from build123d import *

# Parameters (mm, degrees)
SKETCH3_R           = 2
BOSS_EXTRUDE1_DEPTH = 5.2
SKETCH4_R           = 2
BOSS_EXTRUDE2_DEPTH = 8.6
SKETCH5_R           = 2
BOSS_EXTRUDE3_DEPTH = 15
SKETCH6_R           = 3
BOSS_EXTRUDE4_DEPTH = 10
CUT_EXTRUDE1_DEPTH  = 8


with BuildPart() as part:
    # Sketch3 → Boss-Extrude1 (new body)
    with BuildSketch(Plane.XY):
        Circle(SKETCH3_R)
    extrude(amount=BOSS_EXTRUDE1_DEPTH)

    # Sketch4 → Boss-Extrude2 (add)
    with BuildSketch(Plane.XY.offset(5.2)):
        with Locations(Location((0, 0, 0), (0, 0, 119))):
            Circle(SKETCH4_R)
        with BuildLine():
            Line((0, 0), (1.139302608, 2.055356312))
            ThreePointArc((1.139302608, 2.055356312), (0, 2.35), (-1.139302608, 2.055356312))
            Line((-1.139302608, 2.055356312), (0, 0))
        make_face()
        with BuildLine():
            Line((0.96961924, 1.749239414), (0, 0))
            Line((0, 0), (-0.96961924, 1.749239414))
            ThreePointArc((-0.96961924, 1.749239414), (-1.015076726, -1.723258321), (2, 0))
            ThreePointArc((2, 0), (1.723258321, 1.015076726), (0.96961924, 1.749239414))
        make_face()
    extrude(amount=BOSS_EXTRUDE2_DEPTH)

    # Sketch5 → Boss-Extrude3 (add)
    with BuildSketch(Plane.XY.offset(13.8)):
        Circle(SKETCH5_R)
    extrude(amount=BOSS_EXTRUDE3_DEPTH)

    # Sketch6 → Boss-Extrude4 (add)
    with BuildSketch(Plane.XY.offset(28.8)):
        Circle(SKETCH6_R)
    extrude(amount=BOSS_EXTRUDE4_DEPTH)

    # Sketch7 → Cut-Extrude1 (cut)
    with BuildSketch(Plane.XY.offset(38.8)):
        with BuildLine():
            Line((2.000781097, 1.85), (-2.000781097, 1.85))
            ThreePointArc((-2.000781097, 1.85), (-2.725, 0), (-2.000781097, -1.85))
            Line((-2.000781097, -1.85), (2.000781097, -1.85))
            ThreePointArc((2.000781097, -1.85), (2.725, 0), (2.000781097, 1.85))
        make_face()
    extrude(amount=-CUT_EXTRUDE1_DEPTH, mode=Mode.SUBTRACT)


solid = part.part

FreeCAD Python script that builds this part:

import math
import FreeCAD as App
import Part
import Sketcher
Q = App.Units.Quantity

doc = App.newDocument("Part")
body = doc.addObject("PartDesign::Body", "Body")

# Sketch on XY plane
sketch1 = doc.addObject("Sketcher::SketchObject", "Sketch")
body.addObject(sketch1)
sketch1.AttachmentSupport = (doc.XY_Plane, [""])
sketch1.MapMode = "FlatFace"
sketch1.addGeometry(Part.Circle(App.Vector(0, 0, 0), App.Vector(0, 0, 1), 2), False)
sketch1.addConstraint([
    Sketcher.Constraint("Coincident", 0, 3, -1, 1),
    Sketcher.Constraint("Diameter", 0, Q("4 mm")),
])
pad1 = doc.addObject("PartDesign::Pad", "Pad")
body.addObject(pad1)
pad1.Profile = sketch1
pad1.Length = 5.2

# Sketch on XY plane
sketch2 = doc.addObject("Sketcher::SketchObject", "Sketch001")
body.addObject(sketch2)
sketch2.AttachmentSupport = (doc.XY_Plane, [""])
sketch2.MapMode = "FlatFace"
sketch2.AttachmentOffset = App.Placement(App.Vector(0, 0, 5.2), App.Rotation())
sketch2.addGeometry([
    Part.LineSegment(App.Vector(-1.14, 2.06, 0), App.Vector(-0.97, 1.75, 0)),
    Part.ArcOfCircle(Part.Circle(App.Vector(0, 0, 0), App.Vector(0, 0, 1), 2), math.radians(119), math.radians(421)),
    Part.LineSegment(App.Vector(0.97, 1.75, 0), App.Vector(1.14, 2.06, 0)),
    Part.ArcOfCircle(Part.Circle(App.Vector(0, 0, 0), App.Vector(0, 0, 1), 2.35), math.radians(61), math.radians(119)),
], False)
sketch2.addConstraint([
    Sketcher.Constraint("Coincident", 0, 2, 1, 1),
    Sketcher.Constraint("Coincident", 1, 2, 2, 1),
    Sketcher.Constraint("Coincident", 2, 2, 3, 1),
    Sketcher.Constraint("Coincident", 3, 2, 0, 1),
    Sketcher.Constraint("Coincident", 1, 3, -1, 1),
    Sketcher.Constraint("Coincident", 3, 3, -1, 1),
    Sketcher.Constraint("Horizontal", 0, 2, 1, 2),
    Sketcher.Constraint("Horizontal", 2, 2, 3, 2),
    Sketcher.Constraint("Radius", 1, Q("2 mm")),
    Sketcher.Constraint("Angle", 0, Q("-61 deg")),
    Sketcher.Constraint("Radius", 3, Q("2.35 mm")),
    Sketcher.Constraint("DistanceX", 0, 2, -1, 1, Q("0.969619 mm")),
])
pad2 = doc.addObject("PartDesign::Pad", "Pad001")
body.addObject(pad2)
pad2.Profile = sketch2
pad2.Length = 8.6

# Sketch on XY plane
sketch3 = doc.addObject("Sketcher::SketchObject", "Sketch002")
body.addObject(sketch3)
sketch3.AttachmentSupport = (doc.XY_Plane, [""])
sketch3.MapMode = "FlatFace"
sketch3.AttachmentOffset = App.Placement(App.Vector(0, 0, 13.8), App.Rotation())
sketch3.addGeometry(Part.Circle(App.Vector(0, 0, 0), App.Vector(0, 0, 1), 2), False)
sketch3.addConstraint([
    Sketcher.Constraint("Coincident", 0, 3, -1, 1),
    Sketcher.Constraint("Diameter", 0, Q("4 mm")),
])
pad3 = doc.addObject("PartDesign::Pad", "Pad002")
body.addObject(pad3)
pad3.Profile = sketch3
pad3.Length = 15

# Sketch on XY plane
sketch4 = doc.addObject("Sketcher::SketchObject", "Sketch003")
body.addObject(sketch4)
sketch4.AttachmentSupport = (doc.XY_Plane, [""])
sketch4.MapMode = "FlatFace"
sketch4.AttachmentOffset = App.Placement(App.Vector(0, 0, 28.8), App.Rotation())
sketch4.addGeometry(Part.Circle(App.Vector(0, 0, 0), App.Vector(0, 0, 1), 3), False)
sketch4.addConstraint([
    Sketcher.Constraint("Coincident", 0, 3, -1, 1),
    Sketcher.Constraint("Diameter", 0, Q("6 mm")),
])
pad4 = doc.addObject("PartDesign::Pad", "Pad003")
body.addObject(pad4)
pad4.Profile = sketch4
pad4.Length = 10

# Sketch on XY plane
sketch5 = doc.addObject("Sketcher::SketchObject", "Sketch004")
body.addObject(sketch5)
sketch5.AttachmentSupport = (doc.XY_Plane, [""])
sketch5.MapMode = "FlatFace"
sketch5.AttachmentOffset = App.Placement(App.Vector(0, 0, 38.8), App.Rotation())
sketch5.addGeometry([
    Part.LineSegment(App.Vector(2, 1.9, 0), App.Vector(-2, 1.9, 0)),
    Part.ArcOfCircle(Part.Circle(App.Vector(0, 0, 0), App.Vector(0, 0, 1), 2.7), math.radians(137), math.radians(223)),
    Part.LineSegment(App.Vector(-2, -1.9, 0), App.Vector(2, -1.9, 0)),
    Part.ArcOfCircle(Part.Circle(App.Vector(0, 0, 0), App.Vector(0, 0, 1), 2.7), math.radians(-43), math.radians(43)),
], False)
sketch5.addConstraint([
    Sketcher.Constraint("Coincident", 0, 2, 1, 1),
    Sketcher.Constraint("Coincident", 1, 2, 2, 1),
    Sketcher.Constraint("Coincident", 2, 2, 3, 1),
    Sketcher.Constraint("Coincident", 3, 2, 0, 1),
    Sketcher.Constraint("Horizontal", 0),
    Sketcher.Constraint("Horizontal", 2),
    Sketcher.Constraint("Coincident", 1, 3, -1, 1),
    Sketcher.Constraint("Coincident", 3, 3, -1, 1),
    Sketcher.Constraint("Equal", 1, 3),
    Sketcher.Constraint("Vertical", 0, 2, 1, 2),
    Sketcher.Constraint("Radius", 1, Q("2.725 mm")),
    Sketcher.Constraint("DistanceY", 1, 2, 0, 2, Q("3.7 mm")),
])
pocket1 = doc.addObject("PartDesign::Pocket", "Pocket")
body.addObject(pocket1)
pocket1.Profile = sketch5
pocket1.Length = 8

doc.recompute()
